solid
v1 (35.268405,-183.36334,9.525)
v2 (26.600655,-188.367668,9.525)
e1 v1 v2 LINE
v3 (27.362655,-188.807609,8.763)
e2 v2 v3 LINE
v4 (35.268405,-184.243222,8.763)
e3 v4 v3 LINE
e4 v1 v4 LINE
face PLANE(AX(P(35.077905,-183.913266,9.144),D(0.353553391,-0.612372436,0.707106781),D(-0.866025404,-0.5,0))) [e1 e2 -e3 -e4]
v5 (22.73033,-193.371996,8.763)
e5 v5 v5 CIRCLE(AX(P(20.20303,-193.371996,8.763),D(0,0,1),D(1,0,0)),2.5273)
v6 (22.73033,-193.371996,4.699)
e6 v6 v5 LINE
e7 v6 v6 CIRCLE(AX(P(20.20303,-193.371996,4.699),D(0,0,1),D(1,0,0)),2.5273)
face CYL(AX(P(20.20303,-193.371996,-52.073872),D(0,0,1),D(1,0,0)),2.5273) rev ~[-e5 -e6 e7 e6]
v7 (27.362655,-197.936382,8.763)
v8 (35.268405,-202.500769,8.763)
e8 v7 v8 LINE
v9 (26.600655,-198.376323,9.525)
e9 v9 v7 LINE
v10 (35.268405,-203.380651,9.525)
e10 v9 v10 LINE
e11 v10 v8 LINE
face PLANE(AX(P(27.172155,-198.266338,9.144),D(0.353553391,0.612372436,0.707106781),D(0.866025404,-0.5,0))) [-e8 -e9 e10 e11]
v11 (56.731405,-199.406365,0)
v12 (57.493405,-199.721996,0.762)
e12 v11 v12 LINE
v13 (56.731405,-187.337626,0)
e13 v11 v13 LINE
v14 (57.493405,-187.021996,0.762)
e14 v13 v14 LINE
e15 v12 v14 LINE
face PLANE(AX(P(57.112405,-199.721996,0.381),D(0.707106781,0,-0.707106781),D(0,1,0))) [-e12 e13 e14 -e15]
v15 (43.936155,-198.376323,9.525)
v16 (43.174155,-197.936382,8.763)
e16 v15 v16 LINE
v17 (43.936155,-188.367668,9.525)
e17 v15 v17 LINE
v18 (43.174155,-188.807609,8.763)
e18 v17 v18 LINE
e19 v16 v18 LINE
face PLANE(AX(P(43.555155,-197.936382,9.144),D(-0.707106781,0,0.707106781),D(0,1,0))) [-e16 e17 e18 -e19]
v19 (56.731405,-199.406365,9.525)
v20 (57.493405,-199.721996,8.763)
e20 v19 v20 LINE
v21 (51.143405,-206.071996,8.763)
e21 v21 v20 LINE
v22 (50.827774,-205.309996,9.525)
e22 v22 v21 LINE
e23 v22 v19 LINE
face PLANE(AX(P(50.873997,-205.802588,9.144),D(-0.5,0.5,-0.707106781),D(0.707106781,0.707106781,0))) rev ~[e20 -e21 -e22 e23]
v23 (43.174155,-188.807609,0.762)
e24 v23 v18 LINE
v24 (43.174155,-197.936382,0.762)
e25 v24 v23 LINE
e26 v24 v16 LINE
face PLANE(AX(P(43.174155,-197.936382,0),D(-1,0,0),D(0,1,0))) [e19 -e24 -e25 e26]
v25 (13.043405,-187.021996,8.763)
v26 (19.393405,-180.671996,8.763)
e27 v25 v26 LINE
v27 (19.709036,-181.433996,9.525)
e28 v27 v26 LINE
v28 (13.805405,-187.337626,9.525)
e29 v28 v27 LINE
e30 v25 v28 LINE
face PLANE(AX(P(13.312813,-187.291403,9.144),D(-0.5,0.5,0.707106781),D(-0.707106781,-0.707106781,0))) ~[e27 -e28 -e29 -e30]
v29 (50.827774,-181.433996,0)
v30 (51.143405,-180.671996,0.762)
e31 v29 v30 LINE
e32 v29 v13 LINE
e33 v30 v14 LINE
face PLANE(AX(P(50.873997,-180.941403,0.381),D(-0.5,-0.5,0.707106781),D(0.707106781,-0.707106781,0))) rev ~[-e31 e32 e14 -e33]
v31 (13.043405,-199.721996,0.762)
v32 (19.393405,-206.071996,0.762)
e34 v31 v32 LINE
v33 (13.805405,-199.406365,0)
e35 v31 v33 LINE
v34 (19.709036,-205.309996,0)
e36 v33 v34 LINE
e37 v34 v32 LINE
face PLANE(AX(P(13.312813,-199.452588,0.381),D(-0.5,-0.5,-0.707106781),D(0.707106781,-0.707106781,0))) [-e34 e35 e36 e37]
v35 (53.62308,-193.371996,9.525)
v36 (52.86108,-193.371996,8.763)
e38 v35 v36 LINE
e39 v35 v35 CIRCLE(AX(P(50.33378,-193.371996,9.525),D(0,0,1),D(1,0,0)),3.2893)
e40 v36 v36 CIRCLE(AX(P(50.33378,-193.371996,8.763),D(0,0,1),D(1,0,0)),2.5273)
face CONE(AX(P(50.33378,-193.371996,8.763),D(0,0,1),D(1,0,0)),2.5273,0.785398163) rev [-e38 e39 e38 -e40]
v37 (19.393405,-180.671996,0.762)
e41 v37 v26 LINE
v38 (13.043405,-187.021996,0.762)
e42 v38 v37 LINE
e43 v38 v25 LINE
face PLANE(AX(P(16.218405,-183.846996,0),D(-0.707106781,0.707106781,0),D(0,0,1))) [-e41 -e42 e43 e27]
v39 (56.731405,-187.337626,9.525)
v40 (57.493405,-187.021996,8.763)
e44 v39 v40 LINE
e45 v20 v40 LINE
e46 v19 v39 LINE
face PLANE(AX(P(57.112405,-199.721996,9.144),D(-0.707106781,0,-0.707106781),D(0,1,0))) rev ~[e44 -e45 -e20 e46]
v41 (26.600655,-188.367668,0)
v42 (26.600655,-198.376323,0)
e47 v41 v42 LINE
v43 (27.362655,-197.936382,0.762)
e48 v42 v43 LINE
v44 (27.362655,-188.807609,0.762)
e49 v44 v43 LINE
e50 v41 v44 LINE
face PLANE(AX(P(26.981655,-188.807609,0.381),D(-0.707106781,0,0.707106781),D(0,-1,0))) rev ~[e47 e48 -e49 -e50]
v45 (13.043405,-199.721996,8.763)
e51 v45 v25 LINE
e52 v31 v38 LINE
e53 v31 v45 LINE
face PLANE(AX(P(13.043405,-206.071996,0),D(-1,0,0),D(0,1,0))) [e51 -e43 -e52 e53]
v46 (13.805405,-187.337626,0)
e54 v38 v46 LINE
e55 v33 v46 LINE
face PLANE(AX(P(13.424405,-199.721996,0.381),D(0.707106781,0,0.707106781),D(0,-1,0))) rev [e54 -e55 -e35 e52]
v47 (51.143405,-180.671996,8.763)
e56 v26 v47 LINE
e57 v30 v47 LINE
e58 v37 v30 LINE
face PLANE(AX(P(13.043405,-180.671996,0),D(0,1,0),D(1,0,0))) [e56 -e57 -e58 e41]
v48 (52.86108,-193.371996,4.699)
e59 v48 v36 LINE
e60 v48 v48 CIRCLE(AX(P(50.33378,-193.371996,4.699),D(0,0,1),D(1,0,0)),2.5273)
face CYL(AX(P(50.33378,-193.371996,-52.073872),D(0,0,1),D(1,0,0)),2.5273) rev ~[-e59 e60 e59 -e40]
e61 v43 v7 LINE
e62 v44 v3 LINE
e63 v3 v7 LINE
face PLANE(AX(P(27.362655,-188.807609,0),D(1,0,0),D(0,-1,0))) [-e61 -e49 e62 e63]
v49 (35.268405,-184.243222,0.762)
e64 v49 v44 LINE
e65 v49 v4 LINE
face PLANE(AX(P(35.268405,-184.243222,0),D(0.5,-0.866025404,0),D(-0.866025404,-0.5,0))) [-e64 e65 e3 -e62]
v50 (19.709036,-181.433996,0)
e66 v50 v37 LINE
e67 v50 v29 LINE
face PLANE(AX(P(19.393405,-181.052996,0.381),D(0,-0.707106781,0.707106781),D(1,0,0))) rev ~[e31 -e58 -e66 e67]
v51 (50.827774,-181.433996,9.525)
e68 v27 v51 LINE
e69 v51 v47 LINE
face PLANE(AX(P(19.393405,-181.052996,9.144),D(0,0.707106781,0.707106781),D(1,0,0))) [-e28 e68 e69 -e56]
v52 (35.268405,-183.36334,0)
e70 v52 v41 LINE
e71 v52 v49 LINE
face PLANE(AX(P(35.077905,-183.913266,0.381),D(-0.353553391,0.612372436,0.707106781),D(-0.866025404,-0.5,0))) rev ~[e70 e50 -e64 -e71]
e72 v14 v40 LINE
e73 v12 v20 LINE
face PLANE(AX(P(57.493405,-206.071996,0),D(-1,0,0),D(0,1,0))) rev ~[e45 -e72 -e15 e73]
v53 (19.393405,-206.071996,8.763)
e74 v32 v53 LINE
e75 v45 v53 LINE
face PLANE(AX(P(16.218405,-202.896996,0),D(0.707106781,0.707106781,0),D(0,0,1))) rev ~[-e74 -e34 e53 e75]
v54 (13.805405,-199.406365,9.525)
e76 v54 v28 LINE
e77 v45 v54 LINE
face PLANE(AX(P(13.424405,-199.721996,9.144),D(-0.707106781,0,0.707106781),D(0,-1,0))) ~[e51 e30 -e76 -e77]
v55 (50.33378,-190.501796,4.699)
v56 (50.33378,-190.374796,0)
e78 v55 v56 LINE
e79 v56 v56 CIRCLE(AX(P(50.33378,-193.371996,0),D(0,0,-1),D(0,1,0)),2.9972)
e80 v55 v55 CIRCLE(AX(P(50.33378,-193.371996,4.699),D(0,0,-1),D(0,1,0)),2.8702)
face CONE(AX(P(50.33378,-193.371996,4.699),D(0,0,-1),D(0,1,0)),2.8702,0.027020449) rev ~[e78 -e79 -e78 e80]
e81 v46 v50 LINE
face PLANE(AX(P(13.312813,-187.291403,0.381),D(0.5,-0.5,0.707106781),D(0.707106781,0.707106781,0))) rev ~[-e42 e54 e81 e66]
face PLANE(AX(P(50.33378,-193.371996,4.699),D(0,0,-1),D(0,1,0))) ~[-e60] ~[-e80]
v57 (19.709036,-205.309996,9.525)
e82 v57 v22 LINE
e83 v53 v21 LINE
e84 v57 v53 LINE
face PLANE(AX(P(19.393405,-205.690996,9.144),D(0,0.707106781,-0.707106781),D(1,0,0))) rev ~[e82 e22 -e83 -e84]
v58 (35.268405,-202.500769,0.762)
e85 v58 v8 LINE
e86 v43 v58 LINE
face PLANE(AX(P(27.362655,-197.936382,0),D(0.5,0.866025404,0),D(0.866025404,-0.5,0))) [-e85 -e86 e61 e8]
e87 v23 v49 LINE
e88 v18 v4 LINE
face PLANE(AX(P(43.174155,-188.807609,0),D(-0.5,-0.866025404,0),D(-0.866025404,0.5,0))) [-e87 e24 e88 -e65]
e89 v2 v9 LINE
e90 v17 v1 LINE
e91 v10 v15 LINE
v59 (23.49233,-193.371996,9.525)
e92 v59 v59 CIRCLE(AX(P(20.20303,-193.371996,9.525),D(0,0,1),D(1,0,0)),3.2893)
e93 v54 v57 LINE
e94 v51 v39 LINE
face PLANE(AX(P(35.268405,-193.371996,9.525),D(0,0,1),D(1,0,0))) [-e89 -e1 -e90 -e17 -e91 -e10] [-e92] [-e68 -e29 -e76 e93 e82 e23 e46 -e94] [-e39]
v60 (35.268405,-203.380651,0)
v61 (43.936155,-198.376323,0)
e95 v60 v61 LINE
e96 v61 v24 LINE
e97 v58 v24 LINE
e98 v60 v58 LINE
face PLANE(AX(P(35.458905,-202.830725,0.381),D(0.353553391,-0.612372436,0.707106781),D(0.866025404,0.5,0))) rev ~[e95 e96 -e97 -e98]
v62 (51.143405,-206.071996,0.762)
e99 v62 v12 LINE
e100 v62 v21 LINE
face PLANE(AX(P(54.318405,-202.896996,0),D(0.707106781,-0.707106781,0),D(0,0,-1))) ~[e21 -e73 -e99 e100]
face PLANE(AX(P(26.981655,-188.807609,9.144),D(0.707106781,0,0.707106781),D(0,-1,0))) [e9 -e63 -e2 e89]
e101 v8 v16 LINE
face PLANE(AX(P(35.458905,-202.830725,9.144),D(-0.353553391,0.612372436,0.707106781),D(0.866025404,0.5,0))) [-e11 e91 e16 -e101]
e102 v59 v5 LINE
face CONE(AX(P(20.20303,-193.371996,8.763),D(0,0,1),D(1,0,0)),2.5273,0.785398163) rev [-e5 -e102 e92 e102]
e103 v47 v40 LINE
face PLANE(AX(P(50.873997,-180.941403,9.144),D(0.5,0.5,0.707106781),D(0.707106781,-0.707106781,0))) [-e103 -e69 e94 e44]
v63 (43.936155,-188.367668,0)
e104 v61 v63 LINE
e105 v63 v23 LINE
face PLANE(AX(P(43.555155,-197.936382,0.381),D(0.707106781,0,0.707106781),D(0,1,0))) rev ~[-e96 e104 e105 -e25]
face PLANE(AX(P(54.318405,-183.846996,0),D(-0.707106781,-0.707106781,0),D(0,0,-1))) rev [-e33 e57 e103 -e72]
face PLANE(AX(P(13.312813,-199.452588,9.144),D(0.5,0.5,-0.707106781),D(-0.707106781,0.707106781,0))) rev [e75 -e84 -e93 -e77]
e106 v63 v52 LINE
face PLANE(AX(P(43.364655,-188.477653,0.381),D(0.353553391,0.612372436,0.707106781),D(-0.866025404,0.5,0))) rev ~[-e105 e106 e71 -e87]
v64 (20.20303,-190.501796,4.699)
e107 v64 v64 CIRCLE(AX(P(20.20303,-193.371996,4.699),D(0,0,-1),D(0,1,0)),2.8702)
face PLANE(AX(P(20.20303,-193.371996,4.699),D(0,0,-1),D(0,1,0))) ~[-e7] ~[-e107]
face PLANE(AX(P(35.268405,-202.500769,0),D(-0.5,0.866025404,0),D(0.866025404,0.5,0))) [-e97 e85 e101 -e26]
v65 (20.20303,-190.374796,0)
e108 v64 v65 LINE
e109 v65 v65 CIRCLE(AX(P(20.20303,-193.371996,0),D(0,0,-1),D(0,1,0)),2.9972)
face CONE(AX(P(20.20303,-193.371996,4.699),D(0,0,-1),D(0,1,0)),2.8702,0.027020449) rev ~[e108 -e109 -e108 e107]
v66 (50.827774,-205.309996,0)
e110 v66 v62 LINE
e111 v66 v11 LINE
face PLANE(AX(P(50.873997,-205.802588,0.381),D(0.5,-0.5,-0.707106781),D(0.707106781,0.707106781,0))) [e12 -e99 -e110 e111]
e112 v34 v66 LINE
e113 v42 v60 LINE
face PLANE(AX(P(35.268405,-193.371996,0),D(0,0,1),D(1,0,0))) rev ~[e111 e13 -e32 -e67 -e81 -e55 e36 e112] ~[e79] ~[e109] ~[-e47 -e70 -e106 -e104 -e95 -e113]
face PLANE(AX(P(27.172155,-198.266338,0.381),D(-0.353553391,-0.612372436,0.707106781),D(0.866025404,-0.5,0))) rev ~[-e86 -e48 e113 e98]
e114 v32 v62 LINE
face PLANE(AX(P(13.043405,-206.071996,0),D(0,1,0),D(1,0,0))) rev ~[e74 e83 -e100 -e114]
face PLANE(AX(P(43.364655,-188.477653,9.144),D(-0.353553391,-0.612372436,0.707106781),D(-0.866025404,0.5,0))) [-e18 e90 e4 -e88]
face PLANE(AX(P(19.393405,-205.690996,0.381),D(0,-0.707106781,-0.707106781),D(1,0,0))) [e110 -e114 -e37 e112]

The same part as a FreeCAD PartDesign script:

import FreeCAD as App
import Part
import Sketcher
Q = App.Units.Quantity


def edges_at(feature, points):
    """Names of the edges that pass closest to the given points."""
    edges = feature.Shape.Edges
    near = lambda p: min(range(len(edges)), key=lambda i: edges[i].distToShape(Part.Vertex(*p))[0])
    return sorted({f"Edge{near(p) + 1}" for p in points})


def add_polygon(sketch, points):
    """Adds a closed chain of lines whose ends are joined by coincident constraints."""
    first, n = sketch.GeometryCount, len(points)
    for a, b in zip(points, points[1:] + points[:1]):
        sketch.addGeometry(Part.LineSegment(App.Vector(*a, 0), App.Vector(*b, 0)), False)
    for i in range(n):
        sketch.addConstraint(Sketcher.Constraint("Coincident", first + i, 2, first + (i + 1) % n, 1))

doc = App.newDocument("Part")
body = doc.addObject("PartDesign::Body", "Body")

sketch1 = body.newObject("Sketcher::SketchObject", "Sketch")
sketch1.AttachmentSupport = (doc.getObject("XY_Plane"), [""])
sketch1.MapMode = "FlatFace"
add_polygon(sketch1, [(13, -181), (13, -206), (57, -206), (57, -181)])
add_polygon(sketch1, [(43, -189), (43, -198), (35, -203), (27, -198), (27, -189), (35, -184)])
sketch1.addConstraint([
    Sketcher.Constraint("Vertical", 0),
    Sketcher.Constraint("Horizontal", 1),
    Sketcher.Constraint("Vertical", 2),
    Sketcher.Constraint("Horizontal", 3),
    Sketcher.Constraint("Vertical", 4),
    Sketcher.Constraint("Vertical", 7),
    Sketcher.Constraint("Parallel", 5, 8),
    Sketcher.Constraint("Parallel", 6, 9),
    Sketcher.Constraint("Horizontal", 4, 2, 6, 2),
    Sketcher.Constraint("Horizontal", 7, 2, 9, 2),
    Sketcher.Constraint("Vertical", 5, 2, 8, 2),
    Sketcher.Constraint("DistanceY", 0, 2, 0, 1, Q("1 in")),
    Sketcher.Constraint("Angle", 5, Q("-150 deg")),
    Sketcher.Constraint("DistanceX", 1, 1, 1, 2, Q("1.75 in")),
    Sketcher.Constraint("DistanceX", 5, 2, 1, 2, Q("0.875 in")),
    Sketcher.Constraint("DistanceX", 6, 2, 4, 2, Q("0.6225 in")),
    Sketcher.Constraint("DistanceY", 4, 2, 4, 1, 9.128774),
    Sketcher.Constraint("DistanceY", 5, 2, -1, 1, 202.500769),
    Sketcher.Constraint("DistanceX", -1, 1, 0, 2, 13.043405),
    Sketcher.Constraint("DistanceY", 0, 2, -1, 1, 206.071996),
])
pad1 = body.newObject("PartDesign::Pad", "Pad")
pad1.Profile = sketch1
pad1.Length = Q("0.375 in")
doc.recompute()

chamfer = body.newObject("PartDesign::Chamfer", "Chamfer")
chamfer.Base = (pad1, edges_at(pad1, [
    (13.043, -180.672, 4.763),
    (57.493, -180.672, 4.763),
    (57.493, -206.072, 4.763),
    (13.043, -206.072, 4.763),
]))
chamfer.Size = Q("0.25 in")

sketch2 = body.newObject("Sketcher::SketchObject", "Sketch001")
sketch2.AttachmentSupport = (doc.getObject("YZ_Plane"), [""])
sketch2.MapMode = "FlatFace"
sketch2.AttachmentOffset = App.Placement(App.Vector(0, 0, 20.20303), App.Rotation())
add_polygon(sketch2, [(-193.4, 4.7), (-193.4, 0), (-190.4, 0), (-190.5, 4.7)])
sketch2.addGeometry(Part.LineSegment(App.Vector(-193.4, 4.7, 0), App.Vector(-193.4, 0, 0)), True)
sketch2.addConstraint([
    Sketcher.Constraint("Vertical", 0),
    Sketcher.Constraint("Horizontal", 1),
    Sketcher.Constraint("Horizontal", 3),
    Sketcher.Constraint("Vertical", 4),
    Sketcher.Constraint("Coincident", 4, 1, 3, 2),
    Sketcher.Constraint("PointOnObject", 0, 2, -1),
    Sketcher.Constraint("PointOnObject", 4, 2, -1),
    Sketcher.Constraint("DistanceX", 1, 1, 1, 2, Q("0.118 in")),
    Sketcher.Constraint("DistanceX", 3, 2, 3, 1, Q("0.113 in")),
    Sketcher.Constraint("DistanceY", 0, 2, 0, 1, Q("0.185 in")),
    Sketcher.Constraint("DistanceX", 0, 2, -1, 1, 193.371996),
])
groove = body.newObject("PartDesign::Groove", "Groove")
groove.Profile = sketch2
groove.ReferenceAxis = (sketch2, ["Axis0"])
groove.Angle = 360
doc.recompute()

linearpattern = body.newObject("PartDesign::LinearPattern", "LinearPattern")
linearpattern.Originals = [groove]
linearpattern.Direction = (doc.getObject("X_Axis"), [""])
linearpattern.Mode = "offset"
linearpattern.Offset = 30.13075
linearpattern.Occurrences = 2
body.Tip = linearpattern

sketch3 = body.newObject("Sketcher::SketchObject", "Sketch002")
sketch3.AttachmentSupport = (doc.getObject("XY_Plane"), [""])
sketch3.MapMode = "FlatFace"
sketch3.addGeometry([
    Part.Circle(App.Vector(50.3, -193.4, 0), App.Vector(0, 0, 1), 2.5),
    Part.Circle(App.Vector(20.2, -193.4, 0), App.Vector(0, 0, 1), 2.5),
], False)
sketch3.addConstraint([
    Sketcher.Constraint("Equal", 0, 1),
    Sketcher.Constraint("Horizontal", 0, 3, 1, 3),
    Sketcher.Constraint("Diameter", 0, Q("0.199 in")),
    Sketcher.Constraint("DistanceX", -1, 1, 0, 3, 50.33378),
    Sketcher.Constraint("DistanceX", -1, 1, 1, 3, 20.20303),
    Sketcher.Constraint("DistanceY", 0, 3, -1, 1, 193.371996),
])
doc.recompute()
hole = body.newObject("PartDesign::Hole", "Hole")
hole.Profile = sketch3
hole.ThreadType = "None"
hole.Diameter = Q("0.199 in")
hole.DepthType = "ThroughAll"
hole.Reversed = True
doc.recompute()

chamfer2 = body.newObject("PartDesign::Chamfer", "Chamfer001")
chamfer2.Base = (hole, edges_at(hole, [
    (39.221, -200.219, 0),
    (43.174, -193.372, 0),
    (39.221, -186.525, 0),
    (31.316, -186.525, 0),
    (27.363, -193.372, 0),
    (31.316, -200.219, 0),
    (39.221, -200.219, 9.525),
    (43.174, -193.372, 9.525),
    (39.221, -186.525, 9.525),
    (31.316, -186.525, 9.525),
    (27.363, -193.372, 9.525),
    (31.316, -200.219, 9.525),
    (35.268, -180.672, 0),
    (35.268, -180.672, 9.525),
    (13.043, -193.372, 0),
    (57.493, -193.372, 0),
    (35.268, -206.072, 0),
    (16.218, -183.847, 0),
    (16.218, -202.897, 0),
    (54.318, -202.897, 0),
    (54.318, -183.847, 0),
    (57.493, -193.372, 9.525),
    (13.043, -193.372, 9.525),
    (35.268, -206.072, 9.525),
    (16.218, -183.847, 9.525),
    (16.218, -202.897, 9.525),
    (54.318, -202.897, 9.525),
    (54.318, -183.847, 9.525),
    (17.676, -193.372, 9.525),
    (47.806, -193.372, 9.525),
]))
chamfer2.Size = Q("0.03 in")

doc.recompute()
